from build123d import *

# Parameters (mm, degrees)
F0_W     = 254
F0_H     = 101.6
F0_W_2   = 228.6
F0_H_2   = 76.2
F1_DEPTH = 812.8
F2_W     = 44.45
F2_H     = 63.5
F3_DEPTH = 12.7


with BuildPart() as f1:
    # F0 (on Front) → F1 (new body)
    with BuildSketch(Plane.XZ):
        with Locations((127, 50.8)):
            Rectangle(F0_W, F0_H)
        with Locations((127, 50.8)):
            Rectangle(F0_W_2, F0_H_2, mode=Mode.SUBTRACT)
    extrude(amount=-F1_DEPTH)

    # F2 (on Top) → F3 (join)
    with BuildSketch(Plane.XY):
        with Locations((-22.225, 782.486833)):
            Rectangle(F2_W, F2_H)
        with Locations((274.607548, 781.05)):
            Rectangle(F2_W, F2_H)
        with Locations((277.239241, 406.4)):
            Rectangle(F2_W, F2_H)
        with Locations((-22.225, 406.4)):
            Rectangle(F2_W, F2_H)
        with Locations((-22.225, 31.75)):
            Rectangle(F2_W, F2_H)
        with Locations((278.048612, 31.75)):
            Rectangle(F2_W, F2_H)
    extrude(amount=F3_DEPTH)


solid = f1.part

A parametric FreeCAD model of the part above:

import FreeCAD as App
import Part
import Sketcher

V = App.Vector
Q = App.Units.Quantity


def add_polygon(sketch, points):
    """Adds a closed chain of lines whose ends are joined by coincident constraints."""
    first, n = sketch.GeometryCount, len(points)
    for a, b in zip(points, points[1:] + points[:1]):
        sketch.addGeometry(Part.LineSegment(App.Vector(*a, 0), App.Vector(*b, 0)), False)
    for i in range(n):
        sketch.addConstraint(Sketcher.Constraint("Coincident", first + i, 2, first + (i + 1) % n, 1))

doc = App.newDocument("Part")
body = doc.addObject("PartDesign::Body", "Body")
body.AllowCompound = True

# Sketch on XZ plane
sketch1 = body.newObject("Sketcher::SketchObject", "Sketch")
sketch1.AttachmentSupport = (doc.getObject("XZ_Plane"), [""])
sketch1.MapMode = "FlatFace"
add_polygon(sketch1, [(0, 102), (0, 0), (254, 0), (254, 102)])  # lines 0-3
add_polygon(sketch1, [(241, 13), (13, 13), (13, 89), (241, 89)])  # lines 4-7
sketch1.addConstraint(Sketcher.Constraint("Vertical", 0))
sketch1.addConstraint(Sketcher.Constraint("Horizontal", 1))
sketch1.addConstraint(Sketcher.Constraint("Vertical", 2))
sketch1.addConstraint(Sketcher.Constraint("Horizontal", 3))
sketch1.addConstraint(Sketcher.Constraint("Horizontal", 4))
sketch1.addConstraint(Sketcher.Constraint("Vertical", 5))
sketch1.addConstraint(Sketcher.Constraint("Horizontal", 6))
sketch1.addConstraint(Sketcher.Constraint("Vertical", 7))
sketch1.addConstraint(Sketcher.Constraint("Coincident", 0, 2, -1, 1))
sketch1.addConstraint(Sketcher.Constraint("DistanceX", 1, 1, 1, 2, Q("10 in")))
sketch1.addConstraint(Sketcher.Constraint("DistanceX", 4, 2, 4, 1, Q("9 in")))
sketch1.addConstraint(Sketcher.Constraint("DistanceY", 0, 2, 0, 1, Q("4 in")))
sketch1.addConstraint(Sketcher.Constraint("DistanceY", 5, 1, 5, 2, Q("3 in")))
sketch1.addConstraint(Sketcher.Constraint("DistanceX", -1, 1, 4, 2, Q("0.5 in")))
sketch1.addConstraint(Sketcher.Constraint("DistanceY", -1, 1, 4, 2, Q("0.5 in")))
pad1 = body.newObject("PartDesign::Pad", "Pad")
pad1.Profile = sketch1
pad1.Length = Q("32 in")
pad1.Reversed = True

# Sketch on XY plane
sketch2 = body.newObject("Sketcher::SketchObject", "Sketch001")
sketch2.AttachmentSupport = (doc.getObject("XY_Plane"), [""])
sketch2.MapMode = "FlatFace"
add_polygon(sketch2, [(-44, 814), (-44, 751), (0, 751), (0, 814)])  # lines 0-3
add_polygon(sketch2, [(252, 813), (252, 749), (297, 749), (297, 813)])  # lines 4-7
add_polygon(sketch2, [(255, 438), (255, 375), (299, 375), (299, 438)])  # lines 8-11
add_polygon(sketch2, [(-44, 438), (-44, 375), (0, 375), (0, 438)])  # lines 12-15
add_polygon(sketch2, [(-44, 64), (-44, 0), (0, 0), (0, 64)])  # lines 16-19
add_polygon(sketch2, [(256, 64), (256, 0), (300, 0), (300, 64)])  # lines 20-23
sketch2.addConstraint(Sketcher.Constraint("Vertical", 0))
sketch2.addConstraint(Sketcher.Constraint("Horizontal", 1))
sketch2.addConstraint(Sketcher.Constraint("Vertical", 2))
sketch2.addConstraint(Sketcher.Constraint("Horizontal", 3))
sketch2.addConstraint(Sketcher.Constraint("Vertical", 4))
sketch2.addConstraint(Sketcher.Constraint("Horizontal", 5))
sketch2.addConstraint(Sketcher.Constraint("Vertical", 6))
sketch2.addConstraint(Sketcher.Constraint("Horizontal", 7))
sketch2.addConstraint(Sketcher.Constraint("Vertical", 8))
sketch2.addConstraint(Sketcher.Constraint("Horizontal", 9))
sketch2.addConstraint(Sketcher.Constraint("Vertical", 10))
sketch2.addConstraint(Sketcher.Constraint("Horizontal", 11))
sketch2.addConstraint(Sketcher.Constraint("Vertical", 12))
sketch2.addConstraint(Sketcher.Constraint("Horizontal", 13))
sketch2.addConstraint(Sketcher.Constraint("Vertical", 14))
sketch2.addConstraint(Sketcher.Constraint("Horizontal", 15))
sketch2.addConstraint(Sketcher.Constraint("Vertical", 16))
sketch2.addConstraint(Sketcher.Constraint("Horizontal", 17))
sketch2.addConstraint(Sketcher.Constraint("Vertical", 18))
sketch2.addConstraint(Sketcher.Constraint("Horizontal", 19))
sketch2.addConstraint(Sketcher.Constraint("Vertical", 20))
sketch2.addConstraint(Sketcher.Constraint("Horizontal", 21))
sketch2.addConstraint(Sketcher.Constraint("Vertical", 22))
sketch2.addConstraint(Sketcher.Constraint("Horizontal", 23))
sketch2.addConstraint(Sketcher.Constraint("Coincident", 17, 2, -1, 1))
sketch2.addConstraint(Sketcher.Constraint("PointOnObject", 1, 2, -2))
sketch2.addConstraint(Sketcher.Constraint("PointOnObject", 13, 2, -2))
sketch2.addConstraint(Sketcher.Constraint("PointOnObject", 20, 2, -1))
sketch2.addConstraint(Sketcher.Constraint("Horizontal", 9, 2, 12, 2))
sketch2.addConstraint(Sketcher.Constraint("Horizontal", 11, 2, 14, 2))
sketch2.addConstraint(Sketcher.Constraint("Horizontal", 19, 2, 22, 2))
sketch2.addConstraint(Sketcher.Constraint("Vertical", 3, 2, 12, 2))
sketch2.addConstraint(Sketcher.Constraint("Vertical", 15, 2, 16, 2))
sketch2.addConstraint(Sketcher.Constraint("Equal", 3, 5))
sketch2.addConstraint(Sketcher.Constraint("Equal", 7, 9))
sketch2.addConstraint(Sketcher.Constraint("Equal", 19, 21))
sketch2.addConstraint(Sketcher.Constraint("Equal", 2, 4))
sketch2.addConstraint(Sketcher.Constraint("Equal", 6, 8))
sketch2.addConstraint(Sketcher.Constraint("Equal", 14, 16))
sketch2.addConstraint(Sketcher.Constraint("DistanceY", 0, 2, 0, 1, Q("2.5 in")))
sketch2.addConstraint(Sketcher.Constraint("DistanceY", -1, 1, 6, 2, Q("32 in")))
sketch2.addConstraint(Sketcher.Constraint("DistanceX", 1, 1, 1, 2, Q("1.75 in")))
sketch2.addConstraint(Sketcher.Constraint("DistanceY", -1, 1, 8, 2, Q("14.75 in")))
sketch2.addConstraint(Sketcher.Constraint("DistanceX", -1, 1, 4, 2, 252.382548))
sketch2.addConstraint(Sketcher.Constraint("DistanceX", -1, 1, 8, 2, 255.014241))
sketch2.addConstraint(Sketcher.Constraint("DistanceX", -1, 1, 20, 2, 255.823612))
sketch2.addConstraint(Sketcher.Constraint("DistanceY", -1, 1, 0, 2, 750.736833))
pad2 = body.newObject("PartDesign::Pad", "Pad001")
pad2.Profile = sketch2
pad2.Length = Q("0.5 in")

doc.recompute()
